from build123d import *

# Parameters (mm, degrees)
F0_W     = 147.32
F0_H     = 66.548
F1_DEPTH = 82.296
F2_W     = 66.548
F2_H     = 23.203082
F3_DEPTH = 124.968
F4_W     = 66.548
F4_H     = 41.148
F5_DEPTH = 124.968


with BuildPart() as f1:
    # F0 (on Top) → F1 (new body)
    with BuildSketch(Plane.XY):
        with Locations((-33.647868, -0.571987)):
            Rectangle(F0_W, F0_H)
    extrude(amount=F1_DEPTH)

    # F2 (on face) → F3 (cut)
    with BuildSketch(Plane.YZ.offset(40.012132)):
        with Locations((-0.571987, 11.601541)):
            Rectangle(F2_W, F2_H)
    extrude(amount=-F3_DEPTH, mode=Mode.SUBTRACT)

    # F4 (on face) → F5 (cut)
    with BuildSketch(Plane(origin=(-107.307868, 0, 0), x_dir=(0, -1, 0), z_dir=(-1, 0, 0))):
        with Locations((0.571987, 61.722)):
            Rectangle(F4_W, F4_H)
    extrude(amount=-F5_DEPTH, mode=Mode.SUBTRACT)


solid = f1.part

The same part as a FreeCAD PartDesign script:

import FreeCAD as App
import Part
import Sketcher

V = App.Vector
Q = App.Units.Quantity


def add_polygon(sketch, points):
    """Adds a closed chain of lines whose ends are joined by coincident constraints."""
    first, n = sketch.GeometryCount, len(points)
    for a, b in zip(points, points[1:] + points[:1]):
        sketch.addGeometry(Part.LineSegment(App.Vector(*a, 0), App.Vector(*b, 0)), False)
    for i in range(n):
        sketch.addConstraint(Sketcher.Constraint("Coincident", first + i, 2, first + (i + 1) % n, 1))

doc = App.newDocument("Part")
body = doc.addObject("PartDesign::Body", "Body")

# Sketch on XY plane
sketch1 = body.newObject("Sketcher::SketchObject", "Sketch")
sketch1.AttachmentSupport = (doc.getObject("XY_Plane"), [""])
sketch1.MapMode = "FlatFace"
add_polygon(sketch1, [(-107, 33), (-107, -34), (40, -34), (40, 33)])  # lines 0-3
sketch1.addConstraint(Sketcher.Constraint("Vertical", 0))
sketch1.addConstraint(Sketcher.Constraint("Horizontal", 1))
sketch1.addConstraint(Sketcher.Constraint("Vertical", 2))
sketch1.addConstraint(Sketcher.Constraint("Horizontal", 3))
sketch1.addConstraint(Sketcher.Constraint("DistanceX", 1, 1, 1, 2, Q("5.8 in")))
sketch1.addConstraint(Sketcher.Constraint("DistanceY", 0, 2, 0, 1, Q("2.62 in")))
sketch1.addConstraint(Sketcher.Constraint("DistanceX", 0, 2, -1, 1, 107.307868))
sketch1.addConstraint(Sketcher.Constraint("DistanceY", 0, 2, -1, 1, 33.845987))
pad1 = body.newObject("PartDesign::Pad", "Pad")
pad1.Profile = sketch1
pad1.Length = Q("3.24 in")

# Sketch on YZ plane
sketch2 = body.newObject("Sketcher::SketchObject", "Sketch001")
sketch2.AttachmentSupport = (doc.getObject("YZ_Plane"), [""])
sketch2.MapMode = "FlatFace"
sketch2.AttachmentOffset = App.Placement(V(0, 0, 40.012132), App.Rotation())
add_polygon(sketch2, [(-34, 23), (-34, 0), (33, 0), (33, 23)])  # lines 0-3
sketch2.addConstraint(Sketcher.Constraint("Vertical", 0))
sketch2.addConstraint(Sketcher.Constraint("Horizontal", 1))
sketch2.addConstraint(Sketcher.Constraint("Vertical", 2))
sketch2.addConstraint(Sketcher.Constraint("Horizontal", 3))
sketch2.addConstraint(Sketcher.Constraint("PointOnObject", 0, 2, -1))
sketch2.addConstraint(Sketcher.Constraint("DistanceX", 1, 1, 1, 2, Q("2.62 in")))
sketch2.addConstraint(Sketcher.Constraint("DistanceY", 0, 2, 0, 1, 23.203082))
sketch2.addConstraint(Sketcher.Constraint("DistanceX", 0, 2, -1, 1, 33.845987))
pocket1 = body.newObject("PartDesign::Pocket", "Pocket")
pocket1.Profile = sketch2
pocket1.Length = Q("4.92 in")

# Sketch on YZ plane
sketch3 = body.newObject("Sketcher::SketchObject", "Sketch002")
sketch3.AttachmentSupport = (doc.getObject("YZ_Plane"), [""])
sketch3.MapMode = "FlatFace"
sketch3.AttachmentOffset = App.Placement(V(0, 0, -107.307868), App.Rotation())
add_polygon(sketch3, [(33, 82), (33, 41), (-34, 41), (-34, 82)])  # lines 0-3
sketch3.addConstraint(Sketcher.Constraint("Vertical", 0))
sketch3.addConstraint(Sketcher.Constraint("Horizontal", 1))
sketch3.addConstraint(Sketcher.Constraint("Vertical", 2))
sketch3.addConstraint(Sketcher.Constraint("Horizontal", 3))
sketch3.addConstraint(Sketcher.Constraint("DistanceX", 1, 2, 1, 1, Q("2.62 in")))
sketch3.addConstraint(Sketcher.Constraint("DistanceY", 0, 2, 0, 1, Q("1.62 in")))
sketch3.addConstraint(Sketcher.Constraint("DistanceY", -1, 1, 0, 2, Q("1.62 in")))
sketch3.addConstraint(Sketcher.Constraint("DistanceX", -1, 1, 0, 2, 32.702013))
pocket2 = body.newObject("PartDesign::Pocket", "Pocket001")
pocket2.Profile = sketch3
pocket2.Length = Q("4.92 in")
pocket2.Reversed = True

doc.recompute()
